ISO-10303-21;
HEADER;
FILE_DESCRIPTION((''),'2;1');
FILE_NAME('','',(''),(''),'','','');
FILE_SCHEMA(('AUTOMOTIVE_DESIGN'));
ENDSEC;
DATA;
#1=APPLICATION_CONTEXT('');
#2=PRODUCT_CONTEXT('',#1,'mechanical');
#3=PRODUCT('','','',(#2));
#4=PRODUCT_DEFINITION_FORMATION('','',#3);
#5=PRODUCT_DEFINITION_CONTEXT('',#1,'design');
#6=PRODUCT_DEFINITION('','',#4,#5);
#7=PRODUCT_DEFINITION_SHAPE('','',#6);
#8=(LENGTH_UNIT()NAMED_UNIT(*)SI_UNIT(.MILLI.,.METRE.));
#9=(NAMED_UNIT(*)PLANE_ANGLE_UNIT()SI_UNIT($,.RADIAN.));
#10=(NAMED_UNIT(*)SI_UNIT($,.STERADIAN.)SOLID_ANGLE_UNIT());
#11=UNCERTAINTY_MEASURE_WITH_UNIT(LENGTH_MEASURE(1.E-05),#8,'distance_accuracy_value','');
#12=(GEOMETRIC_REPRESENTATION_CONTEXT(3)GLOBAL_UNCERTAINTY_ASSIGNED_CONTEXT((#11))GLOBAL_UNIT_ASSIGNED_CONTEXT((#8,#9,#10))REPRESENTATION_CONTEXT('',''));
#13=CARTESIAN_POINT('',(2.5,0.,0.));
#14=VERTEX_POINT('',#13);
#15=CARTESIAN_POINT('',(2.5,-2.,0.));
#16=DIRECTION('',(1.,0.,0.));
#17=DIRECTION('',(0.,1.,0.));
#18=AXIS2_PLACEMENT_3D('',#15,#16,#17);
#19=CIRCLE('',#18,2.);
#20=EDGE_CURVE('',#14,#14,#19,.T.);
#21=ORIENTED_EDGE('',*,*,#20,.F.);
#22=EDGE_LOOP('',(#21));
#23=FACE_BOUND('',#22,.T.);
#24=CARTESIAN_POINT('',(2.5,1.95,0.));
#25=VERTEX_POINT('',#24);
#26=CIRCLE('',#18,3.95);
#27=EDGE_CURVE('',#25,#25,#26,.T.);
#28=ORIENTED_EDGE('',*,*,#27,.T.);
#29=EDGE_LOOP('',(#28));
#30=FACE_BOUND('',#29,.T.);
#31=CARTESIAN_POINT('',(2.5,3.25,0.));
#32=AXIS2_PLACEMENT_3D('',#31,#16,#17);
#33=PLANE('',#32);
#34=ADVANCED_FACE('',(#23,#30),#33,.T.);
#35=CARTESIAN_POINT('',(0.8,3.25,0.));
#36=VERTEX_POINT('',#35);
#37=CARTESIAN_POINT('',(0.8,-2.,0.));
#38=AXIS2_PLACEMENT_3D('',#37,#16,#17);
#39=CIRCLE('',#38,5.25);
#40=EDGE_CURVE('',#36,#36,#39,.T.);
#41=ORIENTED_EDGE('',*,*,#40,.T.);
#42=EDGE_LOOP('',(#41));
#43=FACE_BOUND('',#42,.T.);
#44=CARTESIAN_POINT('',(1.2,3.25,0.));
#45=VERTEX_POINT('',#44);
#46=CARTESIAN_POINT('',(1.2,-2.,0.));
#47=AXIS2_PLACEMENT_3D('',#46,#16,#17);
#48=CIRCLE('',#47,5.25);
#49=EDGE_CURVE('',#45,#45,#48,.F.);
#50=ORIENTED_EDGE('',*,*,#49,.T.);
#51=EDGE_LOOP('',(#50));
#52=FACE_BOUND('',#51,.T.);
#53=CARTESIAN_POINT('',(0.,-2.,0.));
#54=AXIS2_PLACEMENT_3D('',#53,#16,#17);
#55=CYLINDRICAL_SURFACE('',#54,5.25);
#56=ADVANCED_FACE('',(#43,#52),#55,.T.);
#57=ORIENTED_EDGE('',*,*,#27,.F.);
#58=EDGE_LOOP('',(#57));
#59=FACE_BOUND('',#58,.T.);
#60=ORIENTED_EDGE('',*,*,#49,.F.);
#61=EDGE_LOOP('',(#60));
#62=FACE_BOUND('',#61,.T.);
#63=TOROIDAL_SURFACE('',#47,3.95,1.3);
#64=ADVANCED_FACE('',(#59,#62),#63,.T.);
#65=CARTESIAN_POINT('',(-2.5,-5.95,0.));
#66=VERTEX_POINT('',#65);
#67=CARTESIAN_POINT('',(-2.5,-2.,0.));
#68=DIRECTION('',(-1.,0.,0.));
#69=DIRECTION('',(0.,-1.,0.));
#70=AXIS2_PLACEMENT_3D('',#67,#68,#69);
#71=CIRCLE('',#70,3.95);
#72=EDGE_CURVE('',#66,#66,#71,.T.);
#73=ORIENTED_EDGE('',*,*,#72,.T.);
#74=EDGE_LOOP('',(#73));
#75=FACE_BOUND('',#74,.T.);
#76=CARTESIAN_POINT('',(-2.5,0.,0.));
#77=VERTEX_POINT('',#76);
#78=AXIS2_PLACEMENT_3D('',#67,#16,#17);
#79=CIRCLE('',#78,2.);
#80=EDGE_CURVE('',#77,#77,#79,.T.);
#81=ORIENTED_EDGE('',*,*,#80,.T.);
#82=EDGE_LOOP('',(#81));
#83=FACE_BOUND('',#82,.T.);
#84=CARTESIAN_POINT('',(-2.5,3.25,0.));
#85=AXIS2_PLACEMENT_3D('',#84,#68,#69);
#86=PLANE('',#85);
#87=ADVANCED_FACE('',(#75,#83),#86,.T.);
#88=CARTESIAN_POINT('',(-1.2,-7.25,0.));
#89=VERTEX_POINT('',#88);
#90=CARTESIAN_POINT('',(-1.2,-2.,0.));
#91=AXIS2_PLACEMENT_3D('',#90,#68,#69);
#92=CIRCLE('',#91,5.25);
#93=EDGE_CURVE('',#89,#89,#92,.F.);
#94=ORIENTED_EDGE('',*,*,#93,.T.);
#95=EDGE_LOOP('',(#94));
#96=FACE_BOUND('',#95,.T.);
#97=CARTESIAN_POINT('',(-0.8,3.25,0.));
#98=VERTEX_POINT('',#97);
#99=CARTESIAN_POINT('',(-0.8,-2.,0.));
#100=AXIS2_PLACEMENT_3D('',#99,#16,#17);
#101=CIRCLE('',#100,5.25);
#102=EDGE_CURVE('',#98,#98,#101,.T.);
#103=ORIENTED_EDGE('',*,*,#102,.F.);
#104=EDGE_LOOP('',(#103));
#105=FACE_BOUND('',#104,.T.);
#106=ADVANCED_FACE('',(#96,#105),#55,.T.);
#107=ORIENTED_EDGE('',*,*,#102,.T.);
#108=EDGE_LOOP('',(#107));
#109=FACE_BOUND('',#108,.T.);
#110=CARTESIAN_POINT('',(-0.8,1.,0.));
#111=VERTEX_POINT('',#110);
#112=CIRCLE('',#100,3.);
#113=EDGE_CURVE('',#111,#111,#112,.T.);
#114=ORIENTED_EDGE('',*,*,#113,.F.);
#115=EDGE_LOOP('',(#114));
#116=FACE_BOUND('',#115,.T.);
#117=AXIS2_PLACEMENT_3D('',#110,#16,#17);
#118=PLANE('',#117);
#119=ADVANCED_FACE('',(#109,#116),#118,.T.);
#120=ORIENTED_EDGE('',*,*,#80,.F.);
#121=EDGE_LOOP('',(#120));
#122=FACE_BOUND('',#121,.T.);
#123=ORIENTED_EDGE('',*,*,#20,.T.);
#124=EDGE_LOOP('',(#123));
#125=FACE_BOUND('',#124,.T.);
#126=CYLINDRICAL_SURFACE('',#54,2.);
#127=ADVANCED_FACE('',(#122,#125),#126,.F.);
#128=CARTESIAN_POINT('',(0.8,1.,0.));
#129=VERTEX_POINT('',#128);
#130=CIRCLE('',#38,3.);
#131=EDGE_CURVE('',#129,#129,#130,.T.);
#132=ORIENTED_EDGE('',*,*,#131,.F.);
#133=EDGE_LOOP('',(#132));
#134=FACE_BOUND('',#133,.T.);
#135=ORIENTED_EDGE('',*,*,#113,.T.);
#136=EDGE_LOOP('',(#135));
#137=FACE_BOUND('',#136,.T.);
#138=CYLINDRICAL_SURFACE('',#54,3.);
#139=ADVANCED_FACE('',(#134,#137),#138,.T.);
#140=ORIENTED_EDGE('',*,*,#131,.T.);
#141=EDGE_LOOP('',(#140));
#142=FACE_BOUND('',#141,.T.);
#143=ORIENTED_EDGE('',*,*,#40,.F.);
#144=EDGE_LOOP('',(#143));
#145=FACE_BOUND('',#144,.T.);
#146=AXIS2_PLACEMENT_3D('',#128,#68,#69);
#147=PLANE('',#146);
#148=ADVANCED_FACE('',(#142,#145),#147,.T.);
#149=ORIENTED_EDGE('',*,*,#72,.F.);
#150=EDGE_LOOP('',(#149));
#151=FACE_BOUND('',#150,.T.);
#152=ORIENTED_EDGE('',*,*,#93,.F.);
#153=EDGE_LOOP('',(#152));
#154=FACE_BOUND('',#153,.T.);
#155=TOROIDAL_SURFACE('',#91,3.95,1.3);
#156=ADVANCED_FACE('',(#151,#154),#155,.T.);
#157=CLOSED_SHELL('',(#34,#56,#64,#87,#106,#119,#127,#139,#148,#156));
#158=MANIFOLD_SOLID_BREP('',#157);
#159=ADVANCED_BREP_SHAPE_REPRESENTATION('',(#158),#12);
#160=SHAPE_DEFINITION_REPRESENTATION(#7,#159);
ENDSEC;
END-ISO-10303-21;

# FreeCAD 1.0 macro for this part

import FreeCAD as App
import Part
import Sketcher


def edges_at(feature, points):
    """Names of the edges that pass closest to the given points."""
    edges = feature.Shape.Edges
    near = lambda p: min(range(len(edges)), key=lambda i: edges[i].distToShape(Part.Vertex(*p))[0])
    return sorted({f"Edge{near(p) + 1}" for p in points})

doc = App.newDocument("Part")
body = doc.addObject("PartDesign::Body", "Body")

# Sketch on XY plane
sketch1 = body.newObject("Sketcher::SketchObject", "Sketch")
sketch1.AttachmentSupport = (doc.getObject("XY_Plane"), [""])
sketch1.MapMode = "FlatFace"
sketch1.addGeometry(Part.LineSegment(App.Vector(0.8, 1, 0), App.Vector(-0.8, 1, 0)), False)
sketch1.addGeometry(Part.LineSegment(App.Vector(-0.8, 1, 0), App.Vector(-0.8, 3.25, 0)), False)
sketch1.addGeometry(Part.LineSegment(App.Vector(-0.8, 3.25, 0), App.Vector(-2.5, 3.25, 0)), False)
sketch1.addGeometry(Part.LineSegment(App.Vector(-2.5, 3.25, 0), App.Vector(-2.5, 0, 0)), False)
sketch1.addGeometry(Part.LineSegment(App.Vector(-2.5, 0, 0), App.Vector(2.5, 0, 0)), False)
sketch1.addGeometry(Part.LineSegment(App.Vector(2.5, 0, 0), App.Vector(2.5, 3.25, 0)), False)
sketch1.addGeometry(Part.LineSegment(App.Vector(2.5, 3.25, 0), App.Vector(0.8, 3.25, 0)), False)
sketch1.addGeometry(Part.LineSegment(App.Vector(0.8, 3.25, 0), App.Vector(0.8, 1, 0)), False)
sketch1.addGeometry(Part.LineSegment(App.Vector(2.5, -2, 0), App.Vector(-2.5, -2, 0)), True)  # axis
sketch1.addConstraint(Sketcher.Constraint("Coincident", 0, 2, 1, 1))
sketch1.addConstraint(Sketcher.Constraint("Coincident", 1, 2, 2, 1))
sketch1.addConstraint(Sketcher.Constraint("Coincident", 2, 2, 3, 1))
sketch1.addConstraint(Sketcher.Constraint("Coincident", 3, 2, 4, 1))
sketch1.addConstraint(Sketcher.Constraint("Coincident", 4, 2, 5, 1))
sketch1.addConstraint(Sketcher.Constraint("Coincident", 5, 2, 6, 1))
sketch1.addConstraint(Sketcher.Constraint("Coincident", 6, 2, 7, 1))
sketch1.addConstraint(Sketcher.Constraint("Coincident", 7, 2, 0, 1))
sketch1.addConstraint(Sketcher.Constraint("Horizontal", 0))
sketch1.addConstraint(Sketcher.Constraint("Vertical", 1))
sketch1.addConstraint(Sketcher.Constraint("Horizontal", 2))
sketch1.addConstraint(Sketcher.Constraint("Vertical", 3))
sketch1.addConstraint(Sketcher.Constraint("Horizontal", 4))
sketch1.addConstraint(Sketcher.Constraint("Vertical", 5))
sketch1.addConstraint(Sketcher.Constraint("Horizontal", 6))
sketch1.addConstraint(Sketcher.Constraint("Vertical", 7))
sketch1.addConstraint(Sketcher.Constraint("Horizontal", 8))
sketch1.addConstraint(Sketcher.Constraint("Symmetric", 3, 2, 4, 2, -1, 1))
sketch1.addConstraint(Sketcher.Constraint("Symmetric", 1, 2, 6, 2, -2))
sketch1.addConstraint(Sketcher.Constraint("Vertical", 5, 2, 8, 1))
sketch1.addConstraint(Sketcher.Constraint("Vertical", 3, 2, 8, 2))
sketch1.addConstraint(Sketcher.Constraint("DistanceX", 4, 1, 4, 2, 5.0))
sketch1.addConstraint(Sketcher.Constraint("DistanceX", 0, 2, 0, 1, 1.6))
sketch1.addConstraint(Sketcher.Constraint("DistanceY", -1, 1, 0, 2, 1.0))
sketch1.addConstraint(Sketcher.Constraint("DistanceY", 8, 1, -1, 1, 2.0))
sketch1.addConstraint(Sketcher.Constraint("DistanceY", 1, 1, 1, 2, 2.25))
revolution = body.newObject("PartDesign::Revolution", "Revolution")
revolution.Profile = sketch1
revolution.ReferenceAxis = (sketch1, ["Axis0"])
revolution.Angle = 360
doc.recompute()

fillet = body.newObject("PartDesign::Fillet", "Fillet")
fillet.Base = (revolution, edges_at(revolution, [(2.5, -7.25, 0), (-2.5, -7.25, 0)]))
fillet.Radius = 1.3

doc.recompute()
